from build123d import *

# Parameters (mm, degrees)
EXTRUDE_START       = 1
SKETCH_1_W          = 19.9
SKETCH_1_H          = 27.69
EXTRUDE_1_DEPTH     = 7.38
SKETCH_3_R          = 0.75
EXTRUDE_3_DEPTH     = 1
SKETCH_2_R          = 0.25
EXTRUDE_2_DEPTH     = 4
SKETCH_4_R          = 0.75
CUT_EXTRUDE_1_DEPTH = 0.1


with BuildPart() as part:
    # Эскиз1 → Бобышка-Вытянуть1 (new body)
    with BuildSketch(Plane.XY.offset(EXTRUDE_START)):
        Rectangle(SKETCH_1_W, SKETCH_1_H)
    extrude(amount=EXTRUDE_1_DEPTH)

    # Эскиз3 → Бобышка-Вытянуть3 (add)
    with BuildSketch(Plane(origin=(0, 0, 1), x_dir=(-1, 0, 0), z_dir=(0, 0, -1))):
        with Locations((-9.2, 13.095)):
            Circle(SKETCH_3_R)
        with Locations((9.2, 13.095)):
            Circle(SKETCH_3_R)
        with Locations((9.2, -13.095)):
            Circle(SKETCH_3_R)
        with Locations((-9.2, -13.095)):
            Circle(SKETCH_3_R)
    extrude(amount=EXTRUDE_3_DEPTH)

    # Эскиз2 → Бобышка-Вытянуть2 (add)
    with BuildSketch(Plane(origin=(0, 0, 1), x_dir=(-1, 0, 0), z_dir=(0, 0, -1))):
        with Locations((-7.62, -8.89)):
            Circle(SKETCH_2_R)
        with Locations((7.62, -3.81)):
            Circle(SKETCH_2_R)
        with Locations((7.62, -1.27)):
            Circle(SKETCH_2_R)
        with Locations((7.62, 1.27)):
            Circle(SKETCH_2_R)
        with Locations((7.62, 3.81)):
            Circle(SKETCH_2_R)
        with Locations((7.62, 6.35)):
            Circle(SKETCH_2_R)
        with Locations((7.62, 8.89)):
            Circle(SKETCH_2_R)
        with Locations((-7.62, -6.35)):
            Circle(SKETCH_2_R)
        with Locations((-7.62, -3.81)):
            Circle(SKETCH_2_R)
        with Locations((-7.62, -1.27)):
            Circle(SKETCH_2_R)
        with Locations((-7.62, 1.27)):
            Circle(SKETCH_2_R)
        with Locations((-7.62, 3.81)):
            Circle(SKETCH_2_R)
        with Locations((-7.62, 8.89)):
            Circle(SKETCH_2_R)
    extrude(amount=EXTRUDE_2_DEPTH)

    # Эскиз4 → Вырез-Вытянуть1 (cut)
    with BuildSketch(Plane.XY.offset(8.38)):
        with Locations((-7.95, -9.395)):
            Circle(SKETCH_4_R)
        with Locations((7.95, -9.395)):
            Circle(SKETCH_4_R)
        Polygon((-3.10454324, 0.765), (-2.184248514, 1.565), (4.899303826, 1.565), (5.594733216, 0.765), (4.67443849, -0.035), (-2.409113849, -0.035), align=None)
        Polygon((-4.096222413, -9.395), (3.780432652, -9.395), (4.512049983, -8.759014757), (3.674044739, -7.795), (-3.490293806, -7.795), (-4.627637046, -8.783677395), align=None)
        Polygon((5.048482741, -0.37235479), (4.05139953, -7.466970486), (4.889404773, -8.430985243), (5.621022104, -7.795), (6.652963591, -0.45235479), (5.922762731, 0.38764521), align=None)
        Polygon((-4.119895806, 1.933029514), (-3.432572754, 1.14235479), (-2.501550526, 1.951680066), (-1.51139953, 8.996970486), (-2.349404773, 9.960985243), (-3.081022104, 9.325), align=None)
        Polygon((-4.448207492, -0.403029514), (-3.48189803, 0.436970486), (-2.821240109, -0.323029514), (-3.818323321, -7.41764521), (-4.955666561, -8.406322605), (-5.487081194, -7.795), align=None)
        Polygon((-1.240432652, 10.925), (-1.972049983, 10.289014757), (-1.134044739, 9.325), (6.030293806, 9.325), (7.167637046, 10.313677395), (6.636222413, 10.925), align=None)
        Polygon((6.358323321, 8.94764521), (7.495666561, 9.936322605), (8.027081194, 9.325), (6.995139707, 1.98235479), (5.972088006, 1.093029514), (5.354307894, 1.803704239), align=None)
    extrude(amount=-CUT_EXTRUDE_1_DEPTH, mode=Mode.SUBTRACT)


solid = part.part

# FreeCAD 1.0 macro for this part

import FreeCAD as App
import Part
import Sketcher

V = App.Vector
Q = App.Units.Quantity

doc = App.newDocument("Part")
body = doc.addObject("PartDesign::Body", "Body")

sketch1 = doc.addObject("Sketcher::SketchObject", "Sketch")
body.addObject(sketch1)
sketch1.AttachmentSupport = (doc.XY_Plane, [""])
sketch1.MapMode = "FlatFace"
sketch1.AttachmentOffset = App.Placement(V(0, 0, 1), App.Rotation())
sketch1.addGeometry([
    Part.LineSegment(V(-10, 14, 0), V(-10, -14, 0)),
    Part.LineSegment(V(-10, -14, 0), V(10, -14, 0)),
    Part.LineSegment(V(10, -14, 0), V(10, 14, 0)),
    Part.LineSegment(V(10, 14, 0), V(-10, 14, 0)),
], False)
sketch1.addConstraint([
    Sketcher.Constraint("Coincident", 0, 2, 1, 1),
    Sketcher.Constraint("Coincident", 1, 2, 2, 1),
    Sketcher.Constraint("Coincident", 2, 2, 3, 1),
    Sketcher.Constraint("Coincident", 3, 2, 0, 1),
    Sketcher.Constraint("Vertical", 0),
    Sketcher.Constraint("Horizontal", 1),
    Sketcher.Constraint("Vertical", 2),
    Sketcher.Constraint("Horizontal", 3),
    Sketcher.Constraint("Symmetric", 0, 2, 2, 2, -1, 1),
    Sketcher.Constraint("DistanceX", 1, 1, 1, 2, 19.9),
    Sketcher.Constraint("DistanceY", 0, 2, 0, 1, 27.69),
])
pad1 = doc.addObject("PartDesign::Pad", "Pad")
body.addObject(pad1)
pad1.Profile = sketch1
pad1.Length = 7.38

sketch2 = doc.addObject("Sketcher::SketchObject", "Sketch001")
body.addObject(sketch2)
sketch2.AttachmentSupport = (doc.XY_Plane, [""])
sketch2.MapMode = "FlatFace"
sketch2.AttachmentOffset = App.Placement(V(0, 0, 1), App.Rotation())
sketch2.addGeometry([
    Part.Circle(V(9.2, 13.1, 0), V(0, 0, 1), 0.8),
    Part.Circle(V(-9.2, 13.1, 0), V(0, 0, 1), 0.8),
    Part.Circle(V(-9.2, -13.1, 0), V(0, 0, 1), 0.8),
    Part.Circle(V(9.2, -13.1, 0), V(0, 0, 1), 0.8),
], False)
sketch2.addConstraint([
    Sketcher.Constraint("Equal", 0, 1),
    Sketcher.Constraint("Equal", 1, 2),
    Sketcher.Constraint("Equal", 2, 3),
    Sketcher.Constraint("Symmetric", 0, 3, 2, 3, -1, 1),
    Sketcher.Constraint("Symmetric", 1, 3, 3, 3, -1, 1),
    Sketcher.Constraint("Symmetric", 0, 3, 1, 3, -2),
    Sketcher.Constraint("Diameter", 0, 1.5),
    Sketcher.Constraint("DistanceX", -1, 1, 0, 3, 9.2),
    Sketcher.Constraint("DistanceY", 2, 3, 1, 3, 26.19),
])
pad2 = doc.addObject("PartDesign::Pad", "Pad001")
body.addObject(pad2)
pad2.Profile = sketch2
pad2.Length = 1
pad2.Reversed = True

sketch3 = doc.addObject("Sketcher::SketchObject", "Sketch002")
body.addObject(sketch3)
sketch3.AttachmentSupport = (doc.XY_Plane, [""])
sketch3.MapMode = "FlatFace"
sketch3.AttachmentOffset = App.Placement(V(0, 0, 1), App.Rotation())
sketch3.addGeometry([
    Part.Circle(V(7.62, -8.89, 0), V(0, 0, 1), 0.25),
    Part.Circle(V(-7.62, -3.81, 0), V(0, 0, 1), 0.25),
    Part.Circle(V(-7.62, -1.27, 0), V(0, 0, 1), 0.25),
    Part.Circle(V(-7.62, 1.27, 0), V(0, 0, 1), 0.25),
    Part.Circle(V(-7.62, 3.81, 0), V(0, 0, 1), 0.25),
    Part.Circle(V(-7.62, 6.35, 0), V(0, 0, 1), 0.25),
    Part.Circle(V(-7.62, 8.89, 0), V(0, 0, 1), 0.25),
    Part.Circle(V(7.62, -6.35, 0), V(0, 0, 1), 0.25),
    Part.Circle(V(7.62, -3.81, 0), V(0, 0, 1), 0.25),
    Part.Circle(V(7.62, -1.27, 0), V(0, 0, 1), 0.25),
    Part.Circle(V(7.62, 1.27, 0), V(0, 0, 1), 0.25),
    Part.Circle(V(7.62, 3.81, 0), V(0, 0, 1), 0.25),
    Part.Circle(V(7.62, 8.89, 0), V(0, 0, 1), 0.25),
], False)
sketch3.addConstraint([
    Sketcher.Constraint("Equal", 0, 1),
    Sketcher.Constraint("Equal", 1, 2),
    Sketcher.Constraint("Equal", 2, 3),
    Sketcher.Constraint("Equal", 3, 4),
    Sketcher.Constraint("Equal", 4, 5),
    Sketcher.Constraint("Equal", 5, 6),
    Sketcher.Constraint("Equal", 6, 7),
    Sketcher.Constraint("Equal", 7, 8),
    Sketcher.Constraint("Equal", 8, 9),
    Sketcher.Constraint("Equal", 9, 10),
    Sketcher.Constraint("Equal", 10, 11),
    Sketcher.Constraint("Equal", 11, 12),
    Sketcher.Constraint("Symmetric", 0, 3, 6, 3, -1, 1),
    Sketcher.Constraint("Symmetric", 5, 3, 7, 3, -1, 1),
    Sketcher.Constraint("Symmetric", 4, 3, 8, 3, -1, 1),
    Sketcher.Constraint("Symmetric", 3, 3, 9, 3, -1, 1),
    Sketcher.Constraint("Symmetric", 2, 3, 10, 3, -1, 1),
    Sketcher.Constraint("Symmetric", 1, 3, 11, 3, -1, 1),
    Sketcher.Constraint("Symmetric", 1, 3, 8, 3, -2),
    Sketcher.Constraint("Symmetric", 2, 3, 9, 3, -2),
    Sketcher.Constraint("Symmetric", 6, 3, 12, 3, -2),
    Sketcher.Constraint("Vertical", 1, 3, 2, 3),
    Sketcher.Constraint("Vertical", 4, 3, 5, 3),
    Sketcher.Constraint("Vertical", 5, 3, 6, 3),
    Sketcher.Constraint("Diameter", 0, 0.5),
    Sketcher.Constraint("DistanceY", 0, 3, 4, 3, 12.7),
    Sketcher.Constraint("DistanceX", -1, 1, 0, 3, 7.62),
    Sketcher.Constraint("DistanceY", 0, 3, -1, 1, 8.89),
    Sketcher.Constraint("DistanceY", 2, 3, -1, 1, 1.27),
    Sketcher.Constraint("DistanceY", -1, 1, 5, 3, 6.35),
])
pad3 = doc.addObject("PartDesign::Pad", "Pad002")
body.addObject(pad3)
pad3.Profile = sketch3
pad3.Length = 4
pad3.Reversed = True

sketch4 = doc.addObject("Sketcher::SketchObject", "Sketch003")
body.addObject(sketch4)
sketch4.AttachmentSupport = (doc.XY_Plane, [""])
sketch4.MapMode = "FlatFace"
sketch4.AttachmentOffset = App.Placement(V(0, 0, 8.38), App.Rotation())
sketch4.addGeometry([
    Part.Circle(V(-8, -9.4, 0), V(0, 0, 1), 0.8),
    Part.Circle(V(8, -9.4, 0), V(0, 0, 1), 0.8),
    Part.LineSegment(V(-2.2, 1.6, 0), V(-3.1, 0.8, 0)),
    Part.LineSegment(V(-3.1, 0.8, 0), V(-2.4, 0, 0)),
    Part.LineSegment(V(-2.4, 0, 0), V(4.7, 0, 0)),
    Part.LineSegment(V(4.7, 0, 0), V(5.6, 0.8, 0)),
    Part.LineSegment(V(5.6, 0.8, 0), V(4.9, 1.6, 0)),
    Part.LineSegment(V(4.9, 1.6, 0), V(-2.2, 1.6, 0)),
    Part.LineSegment(V(-4.1, -9.4, 0), V(3.8, -9.4, 0)),
    Part.LineSegment(V(3.8, -9.4, 0), V(4.5, -8.8, 0)),
    Part.LineSegment(V(4.5, -8.8, 0), V(3.7, -7.8, 0)),
    Part.LineSegment(V(3.7, -7.8, 0), V(-3.5, -7.8, 0)),
    Part.LineSegment(V(-3.5, -7.8, 0), V(-4.6, -8.8, 0)),
    Part.LineSegment(V(-4.6, -8.8, 0), V(-4.1, -9.4, 0)),
    Part.LineSegment(V(5, -0.4, 0), V(4.1, -7.5, 0)),
    Part.LineSegment(V(4.1, -7.5, 0), V(4.9, -8.4, 0)),
    Part.LineSegment(V(4.9, -8.4, 0), V(5.6, -7.8, 0)),
    Part.LineSegment(V(5.6, -7.8, 0), V(6.7, -0.5, 0)),
    Part.LineSegment(V(6.7, -0.5, 0), V(5.9, 0.4, 0)),
    Part.LineSegment(V(5.9, 0.4, 0), V(5, -0.4, 0)),
    Part.LineSegment(V(-4.1, 1.9, 0), V(-3.4, 1.1, 0)),
    Part.LineSegment(V(-3.4, 1.1, 0), V(-2.5, 2, 0)),
    Part.LineSegment(V(-2.5, 2, 0), V(-1.5, 9, 0)),
    Part.LineSegment(V(-1.5, 9, 0), V(-2.3, 10, 0)),
    Part.LineSegment(V(-2.3, 10, 0), V(-3.1, 9.3, 0)),
    Part.LineSegment(V(-3.1, 9.3, 0), V(-4.1, 1.9, 0)),
    Part.LineSegment(V(-3.5, 0.4, 0), V(-4.4, -0.4, 0)),
    Part.LineSegment(V(-4.4, -0.4, 0), V(-5.5, -7.8, 0)),
    Part.LineSegment(V(-5.5, -7.8, 0), V(-5, -8.4, 0)),
    Part.LineSegment(V(-5, -8.4, 0), V(-3.8, -7.4, 0)),
    Part.LineSegment(V(-3.8, -7.4, 0), V(-2.8, -0.3, 0)),
    Part.LineSegment(V(-2.8, -0.3, 0), V(-3.5, 0.4, 0)),
    Part.LineSegment(V(-1.2, 10.9, 0), V(-2, 10.3, 0)),
    Part.LineSegment(V(-2, 10.3, 0), V(-1.1, 9.3, 0)),
    Part.LineSegment(V(-1.1, 9.3, 0), V(6, 9.3, 0)),
    Part.LineSegment(V(6, 9.3, 0), V(7.2, 10.3, 0)),
    Part.LineSegment(V(7.2, 10.3, 0), V(6.6, 10.9, 0)),
    Part.LineSegment(V(6.6, 10.9, 0), V(-1.2, 10.9, 0)),
    Part.LineSegment(V(7.5, 9.9, 0), V(6.4, 8.9, 0)),
    Part.LineSegment(V(6.4, 8.9, 0), V(5.4, 1.8, 0)),
    Part.LineSegment(V(5.4, 1.8, 0), V(6, 1.1, 0)),
    Part.LineSegment(V(6, 1.1, 0), V(7, 2, 0)),
    Part.LineSegment(V(7, 2, 0), V(8, 9.3, 0)),
    Part.LineSegment(V(8, 9.3, 0), V(7.5, 9.9, 0)),
], False)
sketch4.addConstraint([
    Sketcher.Constraint("Coincident", 2, 2, 3, 1),
    Sketcher.Constraint("Coincident", 3, 2, 4, 1),
    Sketcher.Constraint("Coincident", 4, 2, 5, 1),
    Sketcher.Constraint("Coincident", 5, 2, 6, 1),
    Sketcher.Constraint("Coincident", 6, 2, 7, 1),
    Sketcher.Constraint("Coincident", 7, 2, 2, 1),
    Sketcher.Constraint("Coincident", 8, 2, 9, 1),
    Sketcher.Constraint("Coincident", 9, 2, 10, 1),
    Sketcher.Constraint("Coincident", 10, 2, 11, 1),
    Sketcher.Constraint("Coincident", 11, 2, 12, 1),
    Sketcher.Constraint("Coincident", 12, 2, 13, 1),
    Sketcher.Constraint("Coincident", 13, 2, 8, 1),
    Sketcher.Constraint("Coincident", 14, 2, 15, 1),
    Sketcher.Constraint("Coincident", 15, 2, 16, 1),
    Sketcher.Constraint("Coincident", 16, 2, 17, 1),
    Sketcher.Constraint("Coincident", 17, 2, 18, 1),
    Sketcher.Constraint("Coincident", 18, 2, 19, 1),
    Sketcher.Constraint("Coincident", 19, 2, 14, 1),
    Sketcher.Constraint("Coincident", 20, 2, 21, 1),
    Sketcher.Constraint("Coincident", 21, 2, 22, 1),
    Sketcher.Constraint("Coincident", 22, 2, 23, 1),
    Sketcher.Constraint("Coincident", 23, 2, 24, 1),
    Sketcher.Constraint("Coincident", 24, 2, 25, 1),
    Sketcher.Constraint("Coincident", 25, 2, 20, 1),
    Sketcher.Constraint("Coincident", 26, 2, 27, 1),
    Sketcher.Constraint("Coincident", 27, 2, 28, 1),
    Sketcher.Constraint("Coincident", 28, 2, 29, 1),
    Sketcher.Constraint("Coincident", 29, 2, 30, 1),
    Sketcher.Constraint("Coincident", 30, 2, 31, 1),
    Sketcher.Constraint("Coincident", 31, 2, 26, 1),
    Sketcher.Constraint("Coincident", 32, 2, 33, 1),
    Sketcher.Constraint("Coincident", 33, 2, 34, 1),
    Sketcher.Constraint("Coincident", 34, 2, 35, 1),
    Sketcher.Constraint("Coincident", 35, 2, 36, 1),
    Sketcher.Constraint("Coincident", 36, 2, 37, 1),
    Sketcher.Constraint("Coincident", 37, 2, 32, 1),
    Sketcher.Constraint("Coincident", 38, 2, 39, 1),
    Sketcher.Constraint("Coincident", 39, 2, 40, 1),
    Sketcher.Constraint("Coincident", 40, 2, 41, 1),
    Sketcher.Constraint("Coincident", 41, 2, 42, 1),
    Sketcher.Constraint("Coincident", 42, 2, 43, 1),
    Sketcher.Constraint("Coincident", 43, 2, 38, 1),
    Sketcher.Constraint("Horizontal", 4),
    Sketcher.Constraint("Horizontal", 7),
    Sketcher.Constraint("Horizontal", 8),
    Sketcher.Constraint("Horizontal", 11),
    Sketcher.Constraint("Horizontal", 34),
    Sketcher.Constraint("Horizontal", 37),
    Sketcher.Constraint("Equal", 0, 1),
    Sketcher.Constraint("Symmetric", 0, 3, 1, 3, -2),
    Sketcher.Constraint("Perpendicular", 2, 3),
    Sketcher.Constraint("Perpendicular", 3, 5),
    Sketcher.Constraint("Perpendicular", 5, 6),
    Sketcher.Constraint("Perpendicular", 6, 9),
    Sketcher.Constraint("Perpendicular", 9, 10),
    Sketcher.Constraint("Perpendicular", 10, 12),
    Sketcher.Constraint("Perpendicular", 12, 13),
    Sketcher.Constraint("Parallel", 13, 15),
    Sketcher.Constraint("Perpendicular", 15, 16),
    Sketcher.Constraint("Parallel", 14, 17),
    Sketcher.Constraint("Perpendicular", 16, 18),
    Sketcher.Constraint("Perpendicular", 18, 19),
    Sketcher.Constraint("Perpendicular", 19, 20),
    Sketcher.Constraint("Perpendicular", 20, 21),
    Sketcher.Constraint("Parallel", 17, 22),
    Sketcher.Constraint("Perpendicular", 21, 23),
    Sketcher.Constraint("Perpendicular", 23, 24),
    Sketcher.Constraint("Parallel", 22, 25),
    Sketcher.Constraint("Parallel", 24, 26),
    Sketcher.Constraint("Parallel", 25, 27),
    Sketcher.Constraint("Perpendicular", 26, 28),
    Sketcher.Constraint("Perpendicular", 28, 29),
    Sketcher.Constraint("Parallel", 27, 30),
    Sketcher.Constraint("Perpendicular", 29, 31),
    Sketcher.Constraint("Perpendicular", 31, 32),
    Sketcher.Constraint("Perpendicular", 32, 33),
    Sketcher.Constraint("Perpendicular", 33, 35),
    Sketcher.Constraint("Perpendicular", 35, 36),
    Sketcher.Constraint("Perpendicular", 36, 38),
    Sketcher.Constraint("Parallel", 30, 39),
    Sketcher.Constraint("Perpendicular", 38, 40),
    Sketcher.Constraint("Perpendicular", 40, 41),
    Sketcher.Constraint("Parallel", 39, 42),
    Sketcher.Constraint("Perpendicular", 41, 43),
    Sketcher.Constraint("Horizontal", 2, 2, 5, 2),
    Sketcher.Constraint("Horizontal", 1, 3, 8, 2),
    Sketcher.Constraint("Horizontal", 11, 2, 16, 2),
    Sketcher.Constraint("Horizontal", 16, 2, 27, 2),
    Sketcher.Constraint("Horizontal", 24, 2, 33, 2),
    Sketcher.Constraint("Horizontal", 34, 2, 42, 2),
    Sketcher.Constraint("Equal", 4, 7),
    Sketcher.Constraint("Equal", 11, 34),
    Sketcher.Constraint("Equal", 8, 37),
    Sketcher.Constraint("Equal", 10, 15),
    Sketcher.Constraint("Equal", 9, 16),
    Sketcher.Constraint("Equal", 15, 23),
    Sketcher.Constraint("Equal", 16, 24),
    Sketcher.Constraint("Equal", 25, 27),
    Sketcher.Constraint("Equal", 13, 28),
    Sketcher.Constraint("Equal", 12, 29),
    Sketcher.Constraint("Equal", 14, 30),
    Sketcher.Constraint("Equal", 24, 32),
    Sketcher.Constraint("Equal", 23, 33),
    Sketcher.Constraint("Equal", 35, 38),
    Sketcher.Constraint("Equal", 17, 42),
    Sketcher.Constraint("Equal", 36, 43),
    Sketcher.Constraint("Diameter", 0, 1.5),
    Sketcher.Constraint("Angle", 2, Q("-139 deg")),
    Sketcher.Constraint("Angle", 14, Q("-98 deg")),
    Sketcher.Constraint("DistanceX", 0, 3, 1, 3, 15.9),
    Sketcher.Constraint("DistanceY", 3, 2, 2, 2, 0.8),
    Sketcher.Constraint("DistanceY", 8, 2, 10, 2, 1.6),
    Sketcher.Constraint("DistanceY", 0, 3, 2, 2, 10.16),
    Sketcher.Constraint("DistanceY", 17, 2, 18, 2, 0.84),
    Sketcher.Constraint("DistanceY", 7, 2, 24, 2, 7.76),
    Sketcher.Constraint("DistanceY", 26, 2, 30, 2, 0.08),
    Sketcher.Constraint("DistanceY", 0, 3, -1, 1, 9.395),
    Sketcher.Constraint("DistanceX", 11, 2, 11, 1, 7.164339),
    Sketcher.Constraint("DistanceX", -1, 1, 14, 2, 4.0514),
    Sketcher.Constraint("DistanceX", 22, 2, -1, 1, 1.5114),
    Sketcher.Constraint("DistanceX", 31, 2, -1, 1, 3.481898),
    Sketcher.Constraint("DistanceX", 8, 2, 5, 2, 1.814301),
    Sketcher.Constraint("DistanceX", 13, 2, 29, 2, 0.277899),
    Sketcher.Constraint("DistanceX", 21, 2, 32, 2, 0.529501),
    Sketcher.Constraint("DistanceX", 23, 2, 34, 2, 8.379699),
    Sketcher.Constraint("DistanceX", 38, 2, 36, 2, 0.277899),
    Sketcher.Constraint("Distance", 13, 0.81001),
    Sketcher.Constraint("Distance", 14, 7.164339),
    Sketcher.Constraint("Distance", 22, 7.114529),
    Sketcher.Constraint("Distance", 39, 7.214149),
    Sketcher.Constraint("DistanceX", 4, 1, 4, 2, 7.083552),
])
pocket1 = doc.addObject("PartDesign::Pocket", "Pocket")
body.addObject(pocket1)
pocket1.Profile = sketch4
pocket1.Length = 0.1

doc.recompute()
